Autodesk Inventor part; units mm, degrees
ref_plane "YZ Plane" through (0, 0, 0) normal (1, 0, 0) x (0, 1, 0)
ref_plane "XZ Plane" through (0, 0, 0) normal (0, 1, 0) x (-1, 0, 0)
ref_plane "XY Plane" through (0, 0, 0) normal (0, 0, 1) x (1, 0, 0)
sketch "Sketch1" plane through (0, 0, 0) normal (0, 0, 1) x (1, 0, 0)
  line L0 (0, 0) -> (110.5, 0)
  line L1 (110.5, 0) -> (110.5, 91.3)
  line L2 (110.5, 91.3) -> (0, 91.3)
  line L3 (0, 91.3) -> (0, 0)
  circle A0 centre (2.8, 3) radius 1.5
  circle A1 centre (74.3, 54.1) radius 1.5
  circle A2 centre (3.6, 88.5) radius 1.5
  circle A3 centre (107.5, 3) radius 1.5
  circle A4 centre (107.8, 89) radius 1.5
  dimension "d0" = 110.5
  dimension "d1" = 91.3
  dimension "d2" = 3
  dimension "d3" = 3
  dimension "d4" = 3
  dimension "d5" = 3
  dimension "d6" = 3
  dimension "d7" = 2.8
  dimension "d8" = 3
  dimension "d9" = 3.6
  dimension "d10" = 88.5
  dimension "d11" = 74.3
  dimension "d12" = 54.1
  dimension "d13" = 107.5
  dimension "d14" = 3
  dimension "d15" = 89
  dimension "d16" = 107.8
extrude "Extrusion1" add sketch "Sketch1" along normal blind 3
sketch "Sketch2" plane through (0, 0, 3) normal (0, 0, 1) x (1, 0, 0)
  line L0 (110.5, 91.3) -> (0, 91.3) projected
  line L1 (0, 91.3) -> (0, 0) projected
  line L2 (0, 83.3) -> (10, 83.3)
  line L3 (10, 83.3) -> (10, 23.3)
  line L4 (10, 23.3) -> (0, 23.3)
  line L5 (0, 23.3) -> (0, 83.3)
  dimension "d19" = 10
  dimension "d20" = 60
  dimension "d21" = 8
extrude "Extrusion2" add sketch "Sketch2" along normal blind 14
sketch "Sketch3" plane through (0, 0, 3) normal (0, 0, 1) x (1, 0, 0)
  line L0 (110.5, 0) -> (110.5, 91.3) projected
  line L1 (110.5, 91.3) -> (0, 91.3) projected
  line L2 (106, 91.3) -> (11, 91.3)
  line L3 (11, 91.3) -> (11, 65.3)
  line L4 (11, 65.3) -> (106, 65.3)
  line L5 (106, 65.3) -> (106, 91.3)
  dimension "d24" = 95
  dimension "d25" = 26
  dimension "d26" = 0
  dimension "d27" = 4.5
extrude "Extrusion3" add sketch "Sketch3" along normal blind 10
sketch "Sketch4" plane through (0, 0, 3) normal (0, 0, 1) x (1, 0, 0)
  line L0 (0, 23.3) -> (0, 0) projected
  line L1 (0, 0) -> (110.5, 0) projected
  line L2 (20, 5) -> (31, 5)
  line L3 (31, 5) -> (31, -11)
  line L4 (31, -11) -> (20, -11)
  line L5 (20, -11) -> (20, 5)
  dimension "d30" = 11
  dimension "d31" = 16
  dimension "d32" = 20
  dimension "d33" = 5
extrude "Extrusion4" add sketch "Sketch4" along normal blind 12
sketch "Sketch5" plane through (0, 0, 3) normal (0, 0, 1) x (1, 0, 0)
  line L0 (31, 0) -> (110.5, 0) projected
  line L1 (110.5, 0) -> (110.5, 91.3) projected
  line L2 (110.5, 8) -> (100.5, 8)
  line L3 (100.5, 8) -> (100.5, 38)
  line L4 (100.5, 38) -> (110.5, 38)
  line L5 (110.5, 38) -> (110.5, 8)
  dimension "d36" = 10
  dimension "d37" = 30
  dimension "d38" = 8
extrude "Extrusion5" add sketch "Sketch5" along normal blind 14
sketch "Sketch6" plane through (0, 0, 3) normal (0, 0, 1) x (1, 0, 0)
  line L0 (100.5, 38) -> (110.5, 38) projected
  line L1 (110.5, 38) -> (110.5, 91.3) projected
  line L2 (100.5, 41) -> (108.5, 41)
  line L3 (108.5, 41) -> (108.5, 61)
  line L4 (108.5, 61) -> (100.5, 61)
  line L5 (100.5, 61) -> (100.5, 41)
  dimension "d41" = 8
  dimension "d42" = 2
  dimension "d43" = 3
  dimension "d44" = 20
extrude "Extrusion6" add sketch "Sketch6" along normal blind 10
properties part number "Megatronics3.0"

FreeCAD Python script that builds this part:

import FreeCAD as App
import Part
import Sketcher

V = App.Vector


def add_polygon(sketch, points):
    """Adds a closed chain of lines whose ends are joined by coincident constraints."""
    first, n = sketch.GeometryCount, len(points)
    for a, b in zip(points, points[1:] + points[:1]):
        sketch.addGeometry(Part.LineSegment(App.Vector(*a, 0), App.Vector(*b, 0)), False)
    for i in range(n):
        sketch.addConstraint(Sketcher.Constraint("Coincident", first + i, 2, first + (i + 1) % n, 1))

doc = App.newDocument("Part")
params = doc.addObject("Spreadsheet::Sheet", "Params")
for row, (alias, value) in enumerate([
    ("sketch1_diameter", "3 mm"),
    ("sketch1_width", "110.5 mm"),
    ("sketch1_height", "91.3 mm"),
    ("pad1_length", "3 mm"),
    ("sketch2_width", "10 mm"),
    ("sketch2_height", "60 mm"),
    ("pad2_length", "14 mm"),
    ("sketch3_width", "95 mm"),
    ("sketch3_height", "26 mm"),
    ("pad3_length", "10 mm"),
    ("sketch4_width", "11 mm"),
    ("sketch4_height", "16 mm"),
    ("pad4_length", "12 mm"),
    ("sketch5_width", "10 mm"),
    ("sketch5_height", "30 mm"),
    ("pad5_length", "14 mm"),
    ("sketch6_width", "8 mm"),
    ("sketch6_height", "20 mm"),
    ("pad6_length", "10 mm"),
], start=1):
    params.set(f"A{row}", alias)
    params.set(f"B{row}", "=" + value)
    params.setAlias(f"B{row}", alias)

body = doc.addObject("PartDesign::Body", "Body")

sketch1 = body.newObject("Sketcher::SketchObject", "Sketch")
sketch1.AttachmentSupport = (doc.getObject("XY_Plane"), [""])
sketch1.MapMode = "FlatFace"
add_polygon(sketch1, [(0, 91.3), (0, 0), (110.5, 0), (110.5, 91.3)])
sketch1.addGeometry(Part.Circle(V(2.8, 3, 0), V(0, 0, 1), 1.5), False)
sketch1.addGeometry(Part.Circle(V(107.5, 3, 0), V(0, 0, 1), 1.5), False)
sketch1.addGeometry(Part.Circle(V(3.6, 88.5, 0), V(0, 0, 1), 1.5), False)
sketch1.addGeometry(Part.Circle(V(74.3, 54.1, 0), V(0, 0, 1), 1.5), False)
sketch1.addGeometry(Part.Circle(V(107.8, 89, 0), V(0, 0, 1), 1.5), False)
sketch1.addConstraint(Sketcher.Constraint("Vertical", 0))
sketch1.addConstraint(Sketcher.Constraint("Horizontal", 1))
sketch1.addConstraint(Sketcher.Constraint("Vertical", 2))
sketch1.addConstraint(Sketcher.Constraint("Horizontal", 3))
sketch1.addConstraint(Sketcher.Constraint("Coincident", 0, 2, -1, 1))
sketch1.addConstraint(Sketcher.Constraint("Equal", 4, 5))
sketch1.addConstraint(Sketcher.Constraint("Equal", 5, 6))
sketch1.addConstraint(Sketcher.Constraint("Equal", 6, 7))
sketch1.addConstraint(Sketcher.Constraint("Equal", 7, 8))
sketch1.addConstraint(Sketcher.Constraint("Horizontal", 4, 3, 5, 3))
sketch1.addConstraint(Sketcher.Constraint("Diameter", 4, 3.0))
sketch1.addConstraint(Sketcher.Constraint("DistanceX", 1, 1, 1, 2, 110.5))
sketch1.addConstraint(Sketcher.Constraint("DistanceY", 0, 2, 0, 1, 91.3))
sketch1.addConstraint(Sketcher.Constraint("DistanceY", -1, 1, 4, 3, 3.0))
sketch1.addConstraint(Sketcher.Constraint("DistanceY", -1, 1, 8, 3, 89.0))
sketch1.addConstraint(Sketcher.Constraint("DistanceX", 5, 3, 1, 2, 3.0))
sketch1.addConstraint(Sketcher.Constraint("DistanceX", -1, 1, 4, 3, 2.8))
sketch1.addConstraint(Sketcher.Constraint("DistanceX", -1, 1, 6, 3, 3.6))
sketch1.addConstraint(Sketcher.Constraint("DistanceY", -1, 1, 6, 3, 88.5))
sketch1.addConstraint(Sketcher.Constraint("DistanceX", -1, 1, 7, 3, 74.3))
sketch1.addConstraint(Sketcher.Constraint("DistanceY", -1, 1, 7, 3, 54.1))
sketch1.addConstraint(Sketcher.Constraint("DistanceX", -1, 1, 8, 3, 107.8))
sketch1.setExpression("Constraints[14]", "Params.sketch1_diameter")
sketch1.setExpression("Constraints[15]", "Params.sketch1_width")
sketch1.setExpression("Constraints[16]", "Params.sketch1_height")
pad1 = body.newObject("PartDesign::Pad", "Pad")
pad1.Profile = sketch1
pad1.setExpression("Length", "Params.pad1_length")

sketch2 = body.newObject("Sketcher::SketchObject", "Sketch001")
sketch2.AttachmentSupport = (doc.getObject("XY_Plane"), [""])
sketch2.MapMode = "FlatFace"
sketch2.AttachmentOffset = App.Placement(V(0, 0, 3), App.Rotation())
add_polygon(sketch2, [(10, 83.3), (0, 83.3), (0, 23.3), (10, 23.3)])
sketch2.addConstraint(Sketcher.Constraint("Horizontal", 0))
sketch2.addConstraint(Sketcher.Constraint("Vertical", 1))
sketch2.addConstraint(Sketcher.Constraint("Horizontal", 2))
sketch2.addConstraint(Sketcher.Constraint("Vertical", 3))
sketch2.addConstraint(Sketcher.Constraint("PointOnObject", 0, 2, -2))
sketch2.addConstraint(Sketcher.Constraint("DistanceX", 0, 2, 0, 1, 10.0))
sketch2.addConstraint(Sketcher.Constraint("DistanceY", 1, 2, 1, 1, 60.0))
sketch2.addConstraint(Sketcher.Constraint("DistanceY", -1, 1, 0, 2, 83.3))
sketch2.setExpression("Constraints[9]", "Params.sketch2_width")
sketch2.setExpression("Constraints[10]", "Params.sketch2_height")
pad2 = body.newObject("PartDesign::Pad", "Pad001")
pad2.Profile = sketch2
pad2.setExpression("Length", "Params.pad2_length")

sketch3 = body.newObject("Sketcher::SketchObject", "Sketch002")
sketch3.AttachmentSupport = (doc.getObject("XY_Plane"), [""])
sketch3.MapMode = "FlatFace"
sketch3.AttachmentOffset = App.Placement(V(0, 0, 3), App.Rotation())
add_polygon(sketch3, [(106, 65.3), (106, 91.3), (11, 91.3), (11, 65.3)])
sketch3.addConstraint(Sketcher.Constraint("Vertical", 0))
sketch3.addConstraint(Sketcher.Constraint("Horizontal", 1))
sketch3.addConstraint(Sketcher.Constraint("Vertical", 2))
sketch3.addConstraint(Sketcher.Constraint("Horizontal", 3))
sketch3.addConstraint(Sketcher.Constraint("DistanceX", 1, 2, 1, 1, 95.0))
sketch3.addConstraint(Sketcher.Constraint("DistanceY", 0, 1, 0, 2, 26.0))
sketch3.addConstraint(Sketcher.Constraint("DistanceX", -1, 1, 0, 2, 106.0))
sketch3.addConstraint(Sketcher.Constraint("DistanceY", -1, 1, 0, 2, 91.3))
sketch3.setExpression("Constraints[8]", "Params.sketch3_width")
sketch3.setExpression("Constraints[9]", "Params.sketch3_height")
pad3 = body.newObject("PartDesign::Pad", "Pad002")
pad3.Profile = sketch3
pad3.setExpression("Length", "Params.pad3_length")

sketch4 = body.newObject("Sketcher::SketchObject", "Sketch003")
sketch4.AttachmentSupport = (doc.getObject("XY_Plane"), [""])
sketch4.MapMode = "FlatFace"
sketch4.AttachmentOffset = App.Placement(V(0, 0, 3), App.Rotation())
add_polygon(sketch4, [(20, 5), (20, -11), (31, -11), (31, 5)])
sketch4.addConstraint(Sketcher.Constraint("Vertical", 0))
sketch4.addConstraint(Sketcher.Constraint("Horizontal", 1))
sketch4.addConstraint(Sketcher.Constraint("Vertical", 2))
sketch4.addConstraint(Sketcher.Constraint("Horizontal", 3))
sketch4.addConstraint(Sketcher.Constraint("DistanceX", 1, 1, 1, 2, 11.0))
sketch4.addConstraint(Sketcher.Constraint("DistanceY", 0, 2, 0, 1, 16.0))
sketch4.addConstraint(Sketcher.Constraint("DistanceX", -1, 1, 0, 2, 20.0))
sketch4.addConstraint(Sketcher.Constraint("DistanceY", 0, 2, -1, 1, 11.0))
sketch4.setExpression("Constraints[8]", "Params.sketch4_width")
sketch4.setExpression("Constraints[9]", "Params.sketch4_height")
pad4 = body.newObject("PartDesign::Pad", "Pad003")
pad4.Profile = sketch4
pad4.setExpression("Length", "Params.pad4_length")

sketch5 = body.newObject("Sketcher::SketchObject", "Sketch004")
sketch5.AttachmentSupport = (doc.getObject("XY_Plane"), [""])
sketch5.MapMode = "FlatFace"
sketch5.AttachmentOffset = App.Placement(V(0, 0, 3), App.Rotation())
add_polygon(sketch5, [(100.5, 8), (110.5, 8), (110.5, 38), (100.5, 38)])
sketch5.addConstraint(Sketcher.Constraint("Horizontal", 0))
sketch5.addConstraint(Sketcher.Constraint("Vertical", 1))
sketch5.addConstraint(Sketcher.Constraint("Horizontal", 2))
sketch5.addConstraint(Sketcher.Constraint("Vertical", 3))
sketch5.addConstraint(Sketcher.Constraint("DistanceX", 0, 1, 0, 2, 10.0))
sketch5.addConstraint(Sketcher.Constraint("DistanceY", 1, 1, 1, 2, 30.0))
sketch5.addConstraint(Sketcher.Constraint("DistanceY", -1, 1, 0, 2, 8.0))
sketch5.addConstraint(Sketcher.Constraint("DistanceX", -1, 1, 0, 2, 110.5))
sketch5.setExpression("Constraints[8]", "Params.sketch5_width")
sketch5.setExpression("Constraints[9]", "Params.sketch5_height")
pad5 = body.newObject("PartDesign::Pad", "Pad004")
pad5.Profile = sketch5
pad5.setExpression("Length", "Params.pad5_length")

sketch6 = body.newObject("Sketcher::SketchObject", "Sketch005")
sketch6.AttachmentSupport = (doc.getObject("XY_Plane"), [""])
sketch6.MapMode = "FlatFace"
sketch6.AttachmentOffset = App.Placement(V(0, 0, 3), App.Rotation())
add_polygon(sketch6, [(100.5, 61), (100.5, 41), (108.5, 41), (108.5, 61)])
sketch6.addConstraint(Sketcher.Constraint("Vertical", 0))
sketch6.addConstraint(Sketcher.Constraint("Horizontal", 1))
sketch6.addConstraint(Sketcher.Constraint("Vertical", 2))
sketch6.addConstraint(Sketcher.Constraint("Horizontal", 3))
sketch6.addConstraint(Sketcher.Constraint("DistanceX", 1, 1, 1, 2, 8.0))
sketch6.addConstraint(Sketcher.Constraint("DistanceY", 0, 2, 0, 1, 20.0))
sketch6.addConstraint(Sketcher.Constraint("DistanceY", -1, 1, 0, 2, 41.0))
sketch6.addConstraint(Sketcher.Constraint("DistanceX", -1, 1, 0, 2, 100.5))
sketch6.setExpression("Constraints[8]", "Params.sketch6_width")
sketch6.setExpression("Constraints[9]", "Params.sketch6_height")
pad6 = body.newObject("PartDesign::Pad", "Pad005")
pad6.Profile = sketch6
pad6.setExpression("Length", "Params.pad6_length")

doc.recompute()
